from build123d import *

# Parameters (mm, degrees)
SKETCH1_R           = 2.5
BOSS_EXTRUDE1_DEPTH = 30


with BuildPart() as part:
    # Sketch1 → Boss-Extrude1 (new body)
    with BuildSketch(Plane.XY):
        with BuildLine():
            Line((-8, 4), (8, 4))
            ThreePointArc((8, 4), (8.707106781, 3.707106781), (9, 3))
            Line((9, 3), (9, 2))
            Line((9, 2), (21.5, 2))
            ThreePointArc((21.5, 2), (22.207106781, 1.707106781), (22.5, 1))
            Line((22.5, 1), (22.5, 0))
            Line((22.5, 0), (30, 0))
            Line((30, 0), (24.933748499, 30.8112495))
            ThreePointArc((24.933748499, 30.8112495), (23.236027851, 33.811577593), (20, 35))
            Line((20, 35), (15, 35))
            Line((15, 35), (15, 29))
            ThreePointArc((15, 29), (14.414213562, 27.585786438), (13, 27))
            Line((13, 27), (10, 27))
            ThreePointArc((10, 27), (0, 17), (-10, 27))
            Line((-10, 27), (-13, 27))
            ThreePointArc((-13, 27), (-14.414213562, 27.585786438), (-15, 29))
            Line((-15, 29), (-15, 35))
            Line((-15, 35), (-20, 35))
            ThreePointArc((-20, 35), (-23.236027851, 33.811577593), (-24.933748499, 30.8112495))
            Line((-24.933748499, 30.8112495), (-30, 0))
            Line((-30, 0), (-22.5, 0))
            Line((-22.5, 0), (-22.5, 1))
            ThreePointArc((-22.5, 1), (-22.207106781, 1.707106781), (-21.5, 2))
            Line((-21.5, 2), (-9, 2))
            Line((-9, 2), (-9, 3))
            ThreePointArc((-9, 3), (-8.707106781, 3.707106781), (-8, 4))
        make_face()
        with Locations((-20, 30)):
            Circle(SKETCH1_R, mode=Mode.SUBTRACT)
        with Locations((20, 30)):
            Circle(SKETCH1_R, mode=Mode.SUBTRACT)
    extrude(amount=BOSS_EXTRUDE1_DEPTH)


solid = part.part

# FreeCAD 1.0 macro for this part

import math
import FreeCAD as App
import Part
import Sketcher
from FreeCAD import Vector

doc = App.newDocument("Part")
params = doc.addObject("Spreadsheet::Sheet", "Params")
for row, (alias, value) in enumerate([
    ("sketch1_diameter", "5 mm"),
    ("sketch1_radius", "1 mm"),
    ("sketch1_radius2", "5 mm"),
    ("sketch1_radius3", "2 mm"),
    ("sketch1_radius4", "10 mm"),
    ("pad1_length", "30 mm"),
], start=1):
    params.set(f"A{row}", alias)
    params.set(f"B{row}", "=" + value)
    params.setAlias(f"B{row}", alias)

body = doc.addObject("PartDesign::Body", "Body")

# Sketch on XY plane
sketch1 = doc.addObject("Sketcher::SketchObject", "Sketch")
body.addObject(sketch1)
sketch1.AttachmentSupport = (doc.XY_Plane, [""])
sketch1.MapMode = "FlatFace"
sketch1.addGeometry(Part.LineSegment(Vector(-8, 4, 0), Vector(8, 4, 0)), False)
sketch1.addGeometry(Part.ArcOfCircle(Part.Circle(Vector(8, 3, 0), Vector(0, 0, 1), 1), math.radians(0), math.radians(90)), False)
sketch1.addGeometry(Part.LineSegment(Vector(9, 3, 0), Vector(9, 2, 0)), False)
sketch1.addGeometry(Part.LineSegment(Vector(9, 2, 0), Vector(21.5, 2, 0)), False)
sketch1.addGeometry(Part.ArcOfCircle(Part.Circle(Vector(21.5, 1, 0), Vector(0, 0, 1), 1), math.radians(0), math.radians(90)), False)
sketch1.addGeometry(Part.LineSegment(Vector(22.5, 1, 0), Vector(22.5, 0, 0)), False)
sketch1.addGeometry(Part.LineSegment(Vector(22.5, 0, 0), Vector(30, 0, 0)), False)
sketch1.addGeometry(Part.LineSegment(Vector(30, 0, 0), Vector(24.9, 30.8, 0)), False)
sketch1.addGeometry(Part.ArcOfCircle(Part.Circle(Vector(20, 30, 0), Vector(0, 0, 1), 5), math.radians(9), math.radians(90)), False)
sketch1.addGeometry(Part.LineSegment(Vector(20, 35, 0), Vector(15, 35, 0)), False)
sketch1.addGeometry(Part.LineSegment(Vector(15, 35, 0), Vector(15, 29, 0)), False)
sketch1.addGeometry(Part.ArcOfCircle(Part.Circle(Vector(13, 29, 0), Vector(0, 0, 1), 2), math.radians(-90), math.radians(0)), False)
sketch1.addGeometry(Part.LineSegment(Vector(13, 27, 0), Vector(10, 27, 0)), False)
sketch1.addGeometry(Part.ArcOfCircle(Part.Circle(Vector(0, 27, 0), Vector(0, 0, 1), 10), math.radians(180), math.radians(360)), False)
sketch1.addGeometry(Part.LineSegment(Vector(-10, 27, 0), Vector(-13, 27, 0)), False)
sketch1.addGeometry(Part.ArcOfCircle(Part.Circle(Vector(-13, 29, 0), Vector(0, 0, 1), 2), math.radians(-180), math.radians(-90)), False)
sketch1.addGeometry(Part.LineSegment(Vector(-15, 29, 0), Vector(-15, 35, 0)), False)
sketch1.addGeometry(Part.LineSegment(Vector(-15, 35, 0), Vector(-20, 35, 0)), False)
sketch1.addGeometry(Part.ArcOfCircle(Part.Circle(Vector(-20, 30, 0), Vector(0, 0, 1), 5), math.radians(90), math.radians(171)), False)
sketch1.addGeometry(Part.LineSegment(Vector(-24.9, 30.8, 0), Vector(-30, 0, 0)), False)
sketch1.addGeometry(Part.LineSegment(Vector(-30, 0, 0), Vector(-22.5, 0, 0)), False)
sketch1.addGeometry(Part.LineSegment(Vector(-22.5, 0, 0), Vector(-22.5, 1, 0)), False)
sketch1.addGeometry(Part.ArcOfCircle(Part.Circle(Vector(-21.5, 1, 0), Vector(0, 0, 1), 1), math.radians(90), math.radians(180)), False)
sketch1.addGeometry(Part.LineSegment(Vector(-21.5, 2, 0), Vector(-9, 2, 0)), False)
sketch1.addGeometry(Part.LineSegment(Vector(-9, 2, 0), Vector(-9, 3, 0)), False)
sketch1.addGeometry(Part.ArcOfCircle(Part.Circle(Vector(-8, 3, 0), Vector(0, 0, 1), 1), math.radians(90), math.radians(180)), False)
sketch1.addGeometry(Part.Circle(Vector(-20, 30, 0), Vector(0, 0, 1), 2.5), False)
sketch1.addGeometry(Part.Circle(Vector(20, 30, 0), Vector(0, 0, 1), 2.5), False)
sketch1.addConstraint(Sketcher.Constraint("Tangent", 0, 2, 1, 2))
sketch1.addConstraint(Sketcher.Constraint("Tangent", 1, 1, 2, 1))
sketch1.addConstraint(Sketcher.Constraint("Coincident", 2, 2, 3, 1))
sketch1.addConstraint(Sketcher.Constraint("Tangent", 3, 2, 4, 2))
sketch1.addConstraint(Sketcher.Constraint("Tangent", 4, 1, 5, 1))
sketch1.addConstraint(Sketcher.Constraint("Coincident", 5, 2, 6, 1))
sketch1.addConstraint(Sketcher.Constraint("Coincident", 6, 2, 7, 1))
sketch1.addConstraint(Sketcher.Constraint("Tangent", 7, 2, 8, 1))
sketch1.addConstraint(Sketcher.Constraint("Tangent", 8, 2, 9, 1))
sketch1.addConstraint(Sketcher.Constraint("Coincident", 9, 2, 10, 1))
sketch1.addConstraint(Sketcher.Constraint("Tangent", 10, 2, 11, 2))
sketch1.addConstraint(Sketcher.Constraint("Tangent", 11, 1, 12, 1))
sketch1.addConstraint(Sketcher.Constraint("Coincident", 12, 2, 13, 2))
sketch1.addConstraint(Sketcher.Constraint("Coincident", 13, 1, 14, 1))
sketch1.addConstraint(Sketcher.Constraint("Tangent", 14, 2, 15, 2))
sketch1.addConstraint(Sketcher.Constraint("Tangent", 15, 1, 16, 1))
sketch1.addConstraint(Sketcher.Constraint("Coincident", 16, 2, 17, 1))
sketch1.addConstraint(Sketcher.Constraint("Tangent", 17, 2, 18, 1))
sketch1.addConstraint(Sketcher.Constraint("Tangent", 18, 2, 19, 1))
sketch1.addConstraint(Sketcher.Constraint("Coincident", 19, 2, 20, 1))
sketch1.addConstraint(Sketcher.Constraint("Coincident", 20, 2, 21, 1))
sketch1.addConstraint(Sketcher.Constraint("Tangent", 21, 2, 22, 2))
sketch1.addConstraint(Sketcher.Constraint("Tangent", 22, 1, 23, 1))
sketch1.addConstraint(Sketcher.Constraint("Coincident", 23, 2, 24, 1))
sketch1.addConstraint(Sketcher.Constraint("Tangent", 24, 2, 25, 2))
sketch1.addConstraint(Sketcher.Constraint("Tangent", 25, 1, 0, 1))
sketch1.addConstraint(Sketcher.Constraint("Horizontal", 0))
sketch1.addConstraint(Sketcher.Constraint("Vertical", 2))
sketch1.addConstraint(Sketcher.Constraint("Horizontal", 3))
sketch1.addConstraint(Sketcher.Constraint("Vertical", 5))
sketch1.addConstraint(Sketcher.Constraint("Horizontal", 6))
sketch1.addConstraint(Sketcher.Constraint("Horizontal", 9))
sketch1.addConstraint(Sketcher.Constraint("Vertical", 10))
sketch1.addConstraint(Sketcher.Constraint("Horizontal", 12))
sketch1.addConstraint(Sketcher.Constraint("Horizontal", 14))
sketch1.addConstraint(Sketcher.Constraint("Vertical", 16))
sketch1.addConstraint(Sketcher.Constraint("Horizontal", 17))
sketch1.addConstraint(Sketcher.Constraint("Horizontal", 20))
sketch1.addConstraint(Sketcher.Constraint("Vertical", 21))
sketch1.addConstraint(Sketcher.Constraint("Horizontal", 23))
sketch1.addConstraint(Sketcher.Constraint("Vertical", 24))
sketch1.addConstraint(Sketcher.Constraint("Coincident", 26, 3, 18, 3))
sketch1.addConstraint(Sketcher.Constraint("Coincident", 27, 3, 8, 3))
sketch1.addConstraint(Sketcher.Constraint("Equal", 1, 4))
sketch1.addConstraint(Sketcher.Constraint("Equal", 11, 15))
sketch1.addConstraint(Sketcher.Constraint("Equal", 8, 18))
sketch1.addConstraint(Sketcher.Constraint("Equal", 4, 22))
sketch1.addConstraint(Sketcher.Constraint("Equal", 22, 25))
sketch1.addConstraint(Sketcher.Constraint("Equal", 26, 27))
sketch1.addConstraint(Sketcher.Constraint("Symmetric", 6, 2, 19, 2, -1, 1))
sketch1.addConstraint(Sketcher.Constraint("Symmetric", 11, 3, 15, 3, -2))
sketch1.addConstraint(Sketcher.Constraint("Symmetric", 8, 3, 18, 3, -2))
sketch1.addConstraint(Sketcher.Constraint("Symmetric", 4, 3, 22, 3, -2))
sketch1.addConstraint(Sketcher.Constraint("PointOnObject", 13, 3, -2))
sketch1.addConstraint(Sketcher.Constraint("PointOnObject", 5, 2, -1))
sketch1.addConstraint(Sketcher.Constraint("Horizontal", 13, 3, 11, 1))
sketch1.addConstraint(Sketcher.Constraint("Equal", 3, 23))
sketch1.addConstraint(Sketcher.Constraint("Equal", 2, 5))
sketch1.addConstraint(Sketcher.Constraint("Diameter", 26, 5.0))
sketch1.addConstraint(Sketcher.Constraint("Radius", 1, 1.0))
sketch1.addConstraint(Sketcher.Constraint("Radius", 8, 5.0))
sketch1.addConstraint(Sketcher.Constraint("Radius", 11, 2.0))
sketch1.addConstraint(Sketcher.Constraint("Radius", 13, 10.0))
sketch1.addConstraint(Sketcher.Constraint("DistanceX", 0, 1, 0, 2, 16.0))
sketch1.addConstraint(Sketcher.Constraint("DistanceX", 9, 2, 9, 1, 5.0))
sketch1.addConstraint(Sketcher.Constraint("DistanceX", 12, 2, 12, 1, 3.0))
sketch1.addConstraint(Sketcher.Constraint("DistanceY", 2, 2, 2, 1, 1.0))
sketch1.addConstraint(Sketcher.Constraint("DistanceY", 10, 2, 10, 1, 6.0))
sketch1.addConstraint(Sketcher.Constraint("DistanceX", 3, 1, 3, 2, 12.5))
sketch1.addConstraint(Sketcher.Constraint("DistanceX", 6, 1, 6, 2, 7.5))
sketch1.addConstraint(Sketcher.Constraint("DistanceY", -1, 1, 8, 3, 30.0))
sketch1.setExpression("Constraints[58]", "Params.sketch1_diameter")
sketch1.setExpression("Constraints[59]", "Params.sketch1_radius")
sketch1.setExpression("Constraints[60]", "Params.sketch1_radius2")
sketch1.setExpression("Constraints[61]", "Params.sketch1_radius3")
sketch1.setExpression("Constraints[62]", "Params.sketch1_radius4")
pad1 = doc.addObject("PartDesign::Pad", "Pad")
body.addObject(pad1)
pad1.Profile = sketch1
pad1.setExpression("Length", "Params.pad1_length")

doc.recompute()
